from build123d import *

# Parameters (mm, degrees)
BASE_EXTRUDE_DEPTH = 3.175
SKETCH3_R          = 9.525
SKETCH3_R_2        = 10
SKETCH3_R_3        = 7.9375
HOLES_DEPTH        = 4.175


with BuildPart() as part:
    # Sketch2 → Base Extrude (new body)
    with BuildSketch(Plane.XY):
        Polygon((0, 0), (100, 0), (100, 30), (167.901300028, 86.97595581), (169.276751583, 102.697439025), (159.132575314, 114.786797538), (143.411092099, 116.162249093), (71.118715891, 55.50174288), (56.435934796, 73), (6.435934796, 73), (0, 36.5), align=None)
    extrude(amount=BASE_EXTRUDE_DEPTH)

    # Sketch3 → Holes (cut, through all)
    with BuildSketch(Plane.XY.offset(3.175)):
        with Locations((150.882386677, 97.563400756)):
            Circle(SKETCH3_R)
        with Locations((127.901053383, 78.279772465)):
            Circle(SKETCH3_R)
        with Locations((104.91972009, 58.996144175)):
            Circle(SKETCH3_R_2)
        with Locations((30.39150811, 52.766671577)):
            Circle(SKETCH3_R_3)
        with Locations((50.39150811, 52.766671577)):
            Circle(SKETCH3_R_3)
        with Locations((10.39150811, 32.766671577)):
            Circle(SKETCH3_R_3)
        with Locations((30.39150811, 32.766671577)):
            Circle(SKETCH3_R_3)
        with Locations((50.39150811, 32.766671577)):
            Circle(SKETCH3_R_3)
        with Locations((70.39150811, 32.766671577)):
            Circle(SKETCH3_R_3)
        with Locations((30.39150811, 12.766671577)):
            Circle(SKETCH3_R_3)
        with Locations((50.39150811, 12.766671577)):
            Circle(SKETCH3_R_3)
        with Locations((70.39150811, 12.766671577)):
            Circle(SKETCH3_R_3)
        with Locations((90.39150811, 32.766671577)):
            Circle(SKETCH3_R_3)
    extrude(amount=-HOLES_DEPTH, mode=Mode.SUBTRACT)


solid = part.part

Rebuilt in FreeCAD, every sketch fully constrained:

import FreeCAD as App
import Part
import Sketcher
Q = App.Units.Quantity


def add_polygon(sketch, points):
    """Adds a closed chain of lines whose ends are joined by coincident constraints."""
    first, n = sketch.GeometryCount, len(points)
    for a, b in zip(points, points[1:] + points[:1]):
        sketch.addGeometry(Part.LineSegment(App.Vector(*a, 0), App.Vector(*b, 0)), False)
    for i in range(n):
        sketch.addConstraint(Sketcher.Constraint("Coincident", first + i, 2, first + (i + 1) % n, 1))

doc = App.newDocument("Part")
params = doc.addObject("Spreadsheet::Sheet", "Params")
for row, (alias, value) in enumerate([
    ("sketch1_width", "100 mm"),
    ("sketch1_width2", "50 mm"),
    ("sketch1_height", "30 mm"),
    ("sketch1_height2", "36.5 mm"),
    ("pad1_length", "3.175 mm"),
    ("sketch2_diameter", "20 mm"),
    ("sketch2_diameter2", "19.05 mm"),
], start=1):
    params.set(f"A{row}", alias)
    params.set(f"B{row}", "=" + value)
    params.setAlias(f"B{row}", alias)

body = doc.addObject("PartDesign::Body", "Body")

# Sketch on XY plane
sketch1 = doc.addObject("Sketcher::SketchObject", "Sketch")
body.addObject(sketch1)
sketch1.AttachmentSupport = (doc.XY_Plane, [""])
sketch1.MapMode = "FlatFace"
add_polygon(sketch1, [(0, 0), (100, 0), (100, 30), (167.9013, 86.975956), (169.276752, 102.697439), (159.132575, 114.786798), (143.411092, 116.162249), (71.118716, 55.501743), (56.435935, 73), (6.435935, 73), (0, 36.5)])  # lines 0-10
sketch1.addConstraint([
    Sketcher.Constraint("Horizontal", 0),
    Sketcher.Constraint("Vertical", 1),
    Sketcher.Constraint("Horizontal", 8),
    Sketcher.Constraint("Vertical", 10),
    Sketcher.Constraint("Coincident", 10, 2, -1, 1),
    Sketcher.Constraint("Perpendicular", 2, 4),
    Sketcher.Constraint("Perpendicular", 3, 5),
    Sketcher.Constraint("Perpendicular", 4, 6),
    Sketcher.Constraint("Perpendicular", 6, 7),
    Sketcher.Constraint("Equal", 3, 4),
    Sketcher.Constraint("Equal", 4, 5),
    Sketcher.Constraint("DistanceX", 0, 1, 0, 2, 100.0),
    Sketcher.Constraint("DistanceX", 8, 2, 8, 1, 50.0),
    Sketcher.Constraint("DistanceY", 1, 1, 1, 2, 30.0),
    Sketcher.Constraint("Angle", 2, Q("40 deg")),
    Sketcher.Constraint("Angle", 3, Q("85 deg")),
    Sketcher.Constraint("Angle", 9, Q("-100 deg")),
    Sketcher.Constraint("DistanceY", 10, 2, 10, 1, 36.5),
    Sketcher.Constraint("DistanceY", -1, 1, 7, 2, 73.0),
    Sketcher.Constraint("DistanceX", -1, 1, 2, 2, 167.9013),
    Sketcher.Constraint("DistanceX", -1, 1, 3, 2, 169.276752),
])
sketch1.setExpression("Constraints[22]", "Params.sketch1_width")
sketch1.setExpression("Constraints[23]", "Params.sketch1_width2")
sketch1.setExpression("Constraints[24]", "Params.sketch1_height")
sketch1.setExpression("Constraints[28]", "Params.sketch1_height2")
pad1 = doc.addObject("PartDesign::Pad", "Pad")
body.addObject(pad1)
pad1.Profile = sketch1
pad1.setExpression("Length", "Params.pad1_length")

# Sketch on XY plane
sketch2 = doc.addObject("Sketcher::SketchObject", "Sketch001")
body.addObject(sketch2)
sketch2.AttachmentSupport = (doc.XY_Plane, [""])
sketch2.MapMode = "FlatFace"
sketch2.AttachmentOffset = App.Placement(App.Vector(0, 0, 3.175), App.Rotation())
sketch2.addGeometry([
    Part.Circle(App.Vector(150.882387, 97.563401, 0), App.Vector(0, 0, 1), 9.525),  # 0
    Part.Circle(App.Vector(127.901053, 78.279772, 0), App.Vector(0, 0, 1), 9.525),  # 1
    Part.Circle(App.Vector(104.91972, 58.996144, 0), App.Vector(0, 0, 1), 10),  # 2
    Part.Circle(App.Vector(30.391508, 52.766672, 0), App.Vector(0, 0, 1), 7.9375),  # 3
    Part.Circle(App.Vector(50.391508, 52.766672, 0), App.Vector(0, 0, 1), 7.9375),  # 4
    Part.Circle(App.Vector(10.391508, 32.766672, 0), App.Vector(0, 0, 1), 7.9375),  # 5
    Part.Circle(App.Vector(30.391508, 32.766672, 0), App.Vector(0, 0, 1), 7.9375),  # 6
    Part.Circle(App.Vector(50.391508, 32.766672, 0), App.Vector(0, 0, 1), 7.9375),  # 7
    Part.Circle(App.Vector(70.391508, 32.766672, 0), App.Vector(0, 0, 1), 7.9375),  # 8
    Part.Circle(App.Vector(30.391508, 12.766672, 0), App.Vector(0, 0, 1), 7.9375),  # 9
    Part.Circle(App.Vector(50.391508, 12.766672, 0), App.Vector(0, 0, 1), 7.9375),  # 10
    Part.Circle(App.Vector(70.391508, 12.766672, 0), App.Vector(0, 0, 1), 7.9375),  # 11
    Part.Circle(App.Vector(90.391508, 32.766672, 0), App.Vector(0, 0, 1), 7.9375),  # 12
], False)
sketch2.addConstraint([
    Sketcher.Constraint("Equal", 0, 1),
    Sketcher.Constraint("Equal", 3, 4),
    Sketcher.Constraint("Equal", 4, 5),
    Sketcher.Constraint("Equal", 5, 6),
    Sketcher.Constraint("Equal", 6, 7),
    Sketcher.Constraint("Equal", 7, 8),
    Sketcher.Constraint("Equal", 8, 9),
    Sketcher.Constraint("Equal", 9, 10),
    Sketcher.Constraint("Equal", 10, 11),
    Sketcher.Constraint("Equal", 11, 12),
    Sketcher.Constraint("Horizontal", 3, 3, 4, 3),
    Sketcher.Constraint("Horizontal", 5, 3, 6, 3),
    Sketcher.Constraint("Horizontal", 6, 3, 7, 3),
    Sketcher.Constraint("Horizontal", 7, 3, 8, 3),
    Sketcher.Constraint("Horizontal", 9, 3, 10, 3),
    Sketcher.Constraint("Horizontal", 10, 3, 11, 3),
    Sketcher.Constraint("Horizontal", 8, 3, 12, 3),
    Sketcher.Constraint("Vertical", 3, 3, 6, 3),
    Sketcher.Constraint("Vertical", 4, 3, 7, 3),
    Sketcher.Constraint("Vertical", 6, 3, 9, 3),
    Sketcher.Constraint("Vertical", 7, 3, 10, 3),
    Sketcher.Constraint("Vertical", 8, 3, 11, 3),
    Sketcher.Constraint("Diameter", 2, 20.0),
    Sketcher.Constraint("Diameter", 0, 19.05),
    Sketcher.Constraint("Diameter", 3, 15.875),
    Sketcher.Constraint("DistanceX", 3, 3, 4, 3, 20.0),
    Sketcher.Constraint("DistanceX", 5, 3, 3, 3, 20.0),
    Sketcher.Constraint("DistanceY", 5, 3, 3, 3, 20.0),
    Sketcher.Constraint("DistanceX", 7, 3, 8, 3, 20.0),
    Sketcher.Constraint("DistanceY", 9, 3, 6, 3, 20.0),
    Sketcher.Constraint("DistanceX", 8, 3, 12, 3, 20.0),
    Sketcher.Constraint("DistanceY", -1, 1, 0, 3, 97.563401),
    Sketcher.Constraint("DistanceY", 3, 3, 1, 3, 25.513101),
    Sketcher.Constraint("DistanceX", -1, 1, 2, 3, 104.91972),
    Sketcher.Constraint("DistanceX", -1, 1, 3, 3, 30.391508),
    Sketcher.Constraint("DistanceY", -1, 1, 3, 3, 52.766672),
    Sketcher.Constraint("DistanceY", 2, 3, 1, 3, 19.283628),
    Sketcher.Constraint("DistanceX", 3, 3, 0, 3, 120.490879),
    Sketcher.Constraint("DistanceX", -1, 1, 1, 3, 127.901053),
])
sketch2.setExpression("Constraints[22]", "Params.sketch2_diameter")
sketch2.setExpression("Constraints[23]", "Params.sketch2_diameter2")
pocket1 = doc.addObject("PartDesign::Pocket", "Pocket")
body.addObject(pocket1)
pocket1.Profile = sketch2
pocket1.Type = "ThroughAll"

doc.recompute()
